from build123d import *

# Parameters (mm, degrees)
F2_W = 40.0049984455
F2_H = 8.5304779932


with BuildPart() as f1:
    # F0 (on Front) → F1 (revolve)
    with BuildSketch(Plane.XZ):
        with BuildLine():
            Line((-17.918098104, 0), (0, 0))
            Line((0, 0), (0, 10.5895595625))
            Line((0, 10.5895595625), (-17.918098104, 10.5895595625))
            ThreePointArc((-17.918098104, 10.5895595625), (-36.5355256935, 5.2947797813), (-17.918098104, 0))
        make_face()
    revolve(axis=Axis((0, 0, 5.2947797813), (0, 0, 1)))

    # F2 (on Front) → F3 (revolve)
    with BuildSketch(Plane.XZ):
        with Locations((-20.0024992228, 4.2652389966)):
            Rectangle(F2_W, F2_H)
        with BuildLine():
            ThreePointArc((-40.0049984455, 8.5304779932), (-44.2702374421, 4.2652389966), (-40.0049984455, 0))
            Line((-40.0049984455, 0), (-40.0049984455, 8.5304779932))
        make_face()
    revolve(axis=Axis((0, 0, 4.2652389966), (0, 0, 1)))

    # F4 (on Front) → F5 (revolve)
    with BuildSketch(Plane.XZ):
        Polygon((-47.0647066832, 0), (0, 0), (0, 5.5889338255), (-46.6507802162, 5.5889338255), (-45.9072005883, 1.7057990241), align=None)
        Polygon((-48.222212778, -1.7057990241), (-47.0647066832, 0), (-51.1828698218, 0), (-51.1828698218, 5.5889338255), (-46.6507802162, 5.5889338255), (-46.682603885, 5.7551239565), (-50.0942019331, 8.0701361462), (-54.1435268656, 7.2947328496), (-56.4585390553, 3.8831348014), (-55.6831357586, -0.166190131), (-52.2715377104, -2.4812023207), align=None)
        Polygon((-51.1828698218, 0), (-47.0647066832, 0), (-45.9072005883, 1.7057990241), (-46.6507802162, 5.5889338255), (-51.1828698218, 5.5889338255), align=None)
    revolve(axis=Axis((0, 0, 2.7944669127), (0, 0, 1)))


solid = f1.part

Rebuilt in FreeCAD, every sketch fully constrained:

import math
import FreeCAD as App
import Part
import Sketcher
Q = App.Units.Quantity

doc = App.newDocument("Part")
params = doc.addObject("Spreadsheet::Sheet", "Params")
for row, (alias, value) in enumerate([
    ("revolution_angle", "360 deg"),
    ("sketch2_width", "1.5749999 in"),
    ("revolution2_angle", "360 deg"),
    ("revolution3_angle", "360 deg"),
], start=1):
    params.set(f"A{row}", alias)
    params.set(f"B{row}", "=" + value)
    params.setAlias(f"B{row}", alias)

body = doc.addObject("PartDesign::Body", "Body")

sketch1 = body.newObject("Sketcher::SketchObject", "Sketch")
sketch1.AttachmentSupport = (doc.getObject("XZ_Plane"), [""])
sketch1.MapMode = "FlatFace"
sketch1.addGeometry(Part.LineSegment(App.Vector(-17.918098, 0, 0), App.Vector(0, 0, 0)), False)
sketch1.addGeometry(Part.LineSegment(App.Vector(0, 0, 0), App.Vector(0, 10.58956, 0)), False)
sketch1.addGeometry(Part.LineSegment(App.Vector(0, 10.58956, 0), App.Vector(-17.918098, 10.58956, 0)), False)
sketch1.addGeometry(Part.ArcOfCircle(Part.Circle(App.Vector(-26.473897, 5.29478, 0), App.Vector(0, 0, 1), 10.061629), math.radians(31.751409), math.radians(328.248591)), False)
sketch1.addConstraint(Sketcher.Constraint("Coincident", 0, 2, 1, 1))
sketch1.addConstraint(Sketcher.Constraint("Coincident", 1, 2, 2, 1))
sketch1.addConstraint(Sketcher.Constraint("Coincident", 2, 2, 3, 1))
sketch1.addConstraint(Sketcher.Constraint("Coincident", 3, 2, 0, 1))
sketch1.addConstraint(Sketcher.Constraint("Horizontal", 0))
sketch1.addConstraint(Sketcher.Constraint("Vertical", 1))
sketch1.addConstraint(Sketcher.Constraint("Horizontal", 2))
sketch1.addConstraint(Sketcher.Constraint("Coincident", 0, 2, -1, 1))
sketch1.addConstraint(Sketcher.Constraint("Vertical", 2, 2, 3, 2))
sketch1.addConstraint(Sketcher.Constraint("Radius", 3, Q("10.061629 mm")))
sketch1.addConstraint(Sketcher.Constraint("DistanceX", 0, 1, 0, 2, Q("17.918098 mm")))
sketch1.addConstraint(Sketcher.Constraint("DistanceY", 1, 1, 1, 2, Q("10.58956 mm")))
revolution = body.newObject("PartDesign::Revolution", "Revolution")
revolution.Profile = sketch1
revolution.ReferenceAxis = (sketch1, ["V_Axis"])
revolution.setExpression("Angle", "Params.revolution_angle")

sketch2 = body.newObject("Sketcher::SketchObject", "Sketch001")
sketch2.AttachmentSupport = (doc.getObject("XZ_Plane"), [""])
sketch2.MapMode = "FlatFace"
sketch2.addGeometry(Part.LineSegment(App.Vector(-40.004998, 0, 0), App.Vector(0, 0, 0)), False)
sketch2.addGeometry(Part.LineSegment(App.Vector(0, 0, 0), App.Vector(0, 8.530478, 0)), False)
sketch2.addGeometry(Part.LineSegment(App.Vector(0, 8.530478, 0), App.Vector(-40.004998, 8.530478, 0)), False)
sketch2.addGeometry(Part.ArcOfCircle(Part.Circle(App.Vector(-40.004998, 4.265239, 0), App.Vector(0, 0, 1), 4.265239), math.radians(90), math.radians(270)), False)
sketch2.addConstraint(Sketcher.Constraint("Coincident", 0, 2, 1, 1))
sketch2.addConstraint(Sketcher.Constraint("Coincident", 1, 2, 2, 1))
sketch2.addConstraint(Sketcher.Constraint("Tangent", 2, 2, 3, 1))
sketch2.addConstraint(Sketcher.Constraint("Tangent", 3, 2, 0, 1))
sketch2.addConstraint(Sketcher.Constraint("Horizontal", 0))
sketch2.addConstraint(Sketcher.Constraint("Vertical", 1))
sketch2.addConstraint(Sketcher.Constraint("Horizontal", 2))
sketch2.addConstraint(Sketcher.Constraint("Coincident", 0, 2, -1, 1))
sketch2.addConstraint(Sketcher.Constraint("DistanceX", 0, 1, 0, 2, Q("1.5749999 in")))
sketch2.addConstraint(Sketcher.Constraint("Radius", 3, Q("4.265239 mm")))
sketch2.setExpression("Constraints[8]", "Params.sketch2_width")
revolution2 = body.newObject("PartDesign::Revolution", "Revolution001")
revolution2.Profile = sketch2
revolution2.ReferenceAxis = (sketch2, ["V_Axis"])
revolution2.setExpression("Angle", "Params.revolution2_angle")

sketch3 = body.newObject("Sketcher::SketchObject", "Sketch002")
sketch3.AttachmentSupport = (doc.getObject("XZ_Plane"), [""])
sketch3.MapMode = "FlatFace"
sketch3.addGeometry(Part.LineSegment(App.Vector(-47.064707, 0, 0), App.Vector(0, 0, 0)), False)
sketch3.addGeometry(Part.LineSegment(App.Vector(0, 0, 0), App.Vector(0, 5.588934, 0)), False)
sketch3.addGeometry(Part.LineSegment(App.Vector(0, 5.588934, 0), App.Vector(-46.65078, 5.588934, 0)), False)
sketch3.addGeometry(Part.LineSegment(App.Vector(-46.65078, 5.588934, 0), App.Vector(-46.682604, 5.755124, 0)), False)
sketch3.addGeometry(Part.LineSegment(App.Vector(-46.682604, 5.755124, 0), App.Vector(-50.094202, 8.070136, 0)), False)
sketch3.addGeometry(Part.LineSegment(App.Vector(-50.094202, 8.070136, 0), App.Vector(-54.143527, 7.294733, 0)), False)
sketch3.addGeometry(Part.LineSegment(App.Vector(-54.143527, 7.294733, 0), App.Vector(-56.458539, 3.883135, 0)), False)
sketch3.addGeometry(Part.LineSegment(App.Vector(-56.458539, 3.883135, 0), App.Vector(-55.683136, -0.16619, 0)), False)
sketch3.addGeometry(Part.LineSegment(App.Vector(-55.683136, -0.16619, 0), App.Vector(-52.271538, -2.481202, 0)), False)
sketch3.addGeometry(Part.LineSegment(App.Vector(-52.271538, -2.481202, 0), App.Vector(-48.222213, -1.705799, 0)), False)
sketch3.addGeometry(Part.LineSegment(App.Vector(-48.222213, -1.705799, 0), App.Vector(-47.064707, 0, 0)), False)
sketch3.addConstraint(Sketcher.Constraint("Coincident", 0, 2, 1, 1))
sketch3.addConstraint(Sketcher.Constraint("Coincident", 1, 2, 2, 1))
sketch3.addConstraint(Sketcher.Constraint("Coincident", 2, 2, 3, 1))
sketch3.addConstraint(Sketcher.Constraint("Coincident", 3, 2, 4, 1))
sketch3.addConstraint(Sketcher.Constraint("Coincident", 4, 2, 5, 1))
sketch3.addConstraint(Sketcher.Constraint("Coincident", 5, 2, 6, 1))
sketch3.addConstraint(Sketcher.Constraint("Coincident", 6, 2, 7, 1))
sketch3.addConstraint(Sketcher.Constraint("Coincident", 7, 2, 8, 1))
sketch3.addConstraint(Sketcher.Constraint("Coincident", 8, 2, 9, 1))
sketch3.addConstraint(Sketcher.Constraint("Coincident", 9, 2, 10, 1))
sketch3.addConstraint(Sketcher.Constraint("Coincident", 10, 2, 0, 1))
sketch3.addConstraint(Sketcher.Constraint("Horizontal", 0))
sketch3.addConstraint(Sketcher.Constraint("Vertical", 1))
sketch3.addConstraint(Sketcher.Constraint("Horizontal", 2))
sketch3.addConstraint(Sketcher.Constraint("Coincident", 0, 2, -1, 1))
sketch3.addConstraint(Sketcher.Constraint("Perpendicular", 3, 5))
sketch3.addConstraint(Sketcher.Constraint("Perpendicular", 4, 6))
sketch3.addConstraint(Sketcher.Constraint("Perpendicular", 5, 7))
sketch3.addConstraint(Sketcher.Constraint("Perpendicular", 6, 8))
sketch3.addConstraint(Sketcher.Constraint("Perpendicular", 7, 9))
sketch3.addConstraint(Sketcher.Constraint("Perpendicular", 8, 10))
sketch3.addConstraint(Sketcher.Constraint("Equal", 4, 5))
sketch3.addConstraint(Sketcher.Constraint("Equal", 5, 6))
sketch3.addConstraint(Sketcher.Constraint("Equal", 6, 7))
sketch3.addConstraint(Sketcher.Constraint("Equal", 7, 8))
sketch3.addConstraint(Sketcher.Constraint("Equal", 8, 9))
sketch3.addConstraint(Sketcher.Constraint("DistanceX", 2, 2, 2, 1, Q("46.65078 mm")))
sketch3.addConstraint(Sketcher.Constraint("DistanceX", 4, 2, -1, 1, Q("50.094202 mm")))
sketch3.addConstraint(Sketcher.Constraint("DistanceY", 9, 2, -1, 1, Q("1.705799 mm")))
sketch3.addConstraint(Sketcher.Constraint("DistanceX", 4, 2, 3, 2, Q("3.411598 mm")))
sketch3.addConstraint(Sketcher.Constraint("DistanceY", 2, 2, 5, 2, Q("1.705799 mm")))
sketch3.addConstraint(Sketcher.Constraint("DistanceY", 6, 2, 4, 2, Q("4.187001 mm")))
revolution3 = body.newObject("PartDesign::Revolution", "Revolution002")
revolution3.Profile = sketch3
revolution3.ReferenceAxis = (sketch3, ["V_Axis"])
revolution3.setExpression("Angle", "Params.revolution3_angle")

doc.recompute()
